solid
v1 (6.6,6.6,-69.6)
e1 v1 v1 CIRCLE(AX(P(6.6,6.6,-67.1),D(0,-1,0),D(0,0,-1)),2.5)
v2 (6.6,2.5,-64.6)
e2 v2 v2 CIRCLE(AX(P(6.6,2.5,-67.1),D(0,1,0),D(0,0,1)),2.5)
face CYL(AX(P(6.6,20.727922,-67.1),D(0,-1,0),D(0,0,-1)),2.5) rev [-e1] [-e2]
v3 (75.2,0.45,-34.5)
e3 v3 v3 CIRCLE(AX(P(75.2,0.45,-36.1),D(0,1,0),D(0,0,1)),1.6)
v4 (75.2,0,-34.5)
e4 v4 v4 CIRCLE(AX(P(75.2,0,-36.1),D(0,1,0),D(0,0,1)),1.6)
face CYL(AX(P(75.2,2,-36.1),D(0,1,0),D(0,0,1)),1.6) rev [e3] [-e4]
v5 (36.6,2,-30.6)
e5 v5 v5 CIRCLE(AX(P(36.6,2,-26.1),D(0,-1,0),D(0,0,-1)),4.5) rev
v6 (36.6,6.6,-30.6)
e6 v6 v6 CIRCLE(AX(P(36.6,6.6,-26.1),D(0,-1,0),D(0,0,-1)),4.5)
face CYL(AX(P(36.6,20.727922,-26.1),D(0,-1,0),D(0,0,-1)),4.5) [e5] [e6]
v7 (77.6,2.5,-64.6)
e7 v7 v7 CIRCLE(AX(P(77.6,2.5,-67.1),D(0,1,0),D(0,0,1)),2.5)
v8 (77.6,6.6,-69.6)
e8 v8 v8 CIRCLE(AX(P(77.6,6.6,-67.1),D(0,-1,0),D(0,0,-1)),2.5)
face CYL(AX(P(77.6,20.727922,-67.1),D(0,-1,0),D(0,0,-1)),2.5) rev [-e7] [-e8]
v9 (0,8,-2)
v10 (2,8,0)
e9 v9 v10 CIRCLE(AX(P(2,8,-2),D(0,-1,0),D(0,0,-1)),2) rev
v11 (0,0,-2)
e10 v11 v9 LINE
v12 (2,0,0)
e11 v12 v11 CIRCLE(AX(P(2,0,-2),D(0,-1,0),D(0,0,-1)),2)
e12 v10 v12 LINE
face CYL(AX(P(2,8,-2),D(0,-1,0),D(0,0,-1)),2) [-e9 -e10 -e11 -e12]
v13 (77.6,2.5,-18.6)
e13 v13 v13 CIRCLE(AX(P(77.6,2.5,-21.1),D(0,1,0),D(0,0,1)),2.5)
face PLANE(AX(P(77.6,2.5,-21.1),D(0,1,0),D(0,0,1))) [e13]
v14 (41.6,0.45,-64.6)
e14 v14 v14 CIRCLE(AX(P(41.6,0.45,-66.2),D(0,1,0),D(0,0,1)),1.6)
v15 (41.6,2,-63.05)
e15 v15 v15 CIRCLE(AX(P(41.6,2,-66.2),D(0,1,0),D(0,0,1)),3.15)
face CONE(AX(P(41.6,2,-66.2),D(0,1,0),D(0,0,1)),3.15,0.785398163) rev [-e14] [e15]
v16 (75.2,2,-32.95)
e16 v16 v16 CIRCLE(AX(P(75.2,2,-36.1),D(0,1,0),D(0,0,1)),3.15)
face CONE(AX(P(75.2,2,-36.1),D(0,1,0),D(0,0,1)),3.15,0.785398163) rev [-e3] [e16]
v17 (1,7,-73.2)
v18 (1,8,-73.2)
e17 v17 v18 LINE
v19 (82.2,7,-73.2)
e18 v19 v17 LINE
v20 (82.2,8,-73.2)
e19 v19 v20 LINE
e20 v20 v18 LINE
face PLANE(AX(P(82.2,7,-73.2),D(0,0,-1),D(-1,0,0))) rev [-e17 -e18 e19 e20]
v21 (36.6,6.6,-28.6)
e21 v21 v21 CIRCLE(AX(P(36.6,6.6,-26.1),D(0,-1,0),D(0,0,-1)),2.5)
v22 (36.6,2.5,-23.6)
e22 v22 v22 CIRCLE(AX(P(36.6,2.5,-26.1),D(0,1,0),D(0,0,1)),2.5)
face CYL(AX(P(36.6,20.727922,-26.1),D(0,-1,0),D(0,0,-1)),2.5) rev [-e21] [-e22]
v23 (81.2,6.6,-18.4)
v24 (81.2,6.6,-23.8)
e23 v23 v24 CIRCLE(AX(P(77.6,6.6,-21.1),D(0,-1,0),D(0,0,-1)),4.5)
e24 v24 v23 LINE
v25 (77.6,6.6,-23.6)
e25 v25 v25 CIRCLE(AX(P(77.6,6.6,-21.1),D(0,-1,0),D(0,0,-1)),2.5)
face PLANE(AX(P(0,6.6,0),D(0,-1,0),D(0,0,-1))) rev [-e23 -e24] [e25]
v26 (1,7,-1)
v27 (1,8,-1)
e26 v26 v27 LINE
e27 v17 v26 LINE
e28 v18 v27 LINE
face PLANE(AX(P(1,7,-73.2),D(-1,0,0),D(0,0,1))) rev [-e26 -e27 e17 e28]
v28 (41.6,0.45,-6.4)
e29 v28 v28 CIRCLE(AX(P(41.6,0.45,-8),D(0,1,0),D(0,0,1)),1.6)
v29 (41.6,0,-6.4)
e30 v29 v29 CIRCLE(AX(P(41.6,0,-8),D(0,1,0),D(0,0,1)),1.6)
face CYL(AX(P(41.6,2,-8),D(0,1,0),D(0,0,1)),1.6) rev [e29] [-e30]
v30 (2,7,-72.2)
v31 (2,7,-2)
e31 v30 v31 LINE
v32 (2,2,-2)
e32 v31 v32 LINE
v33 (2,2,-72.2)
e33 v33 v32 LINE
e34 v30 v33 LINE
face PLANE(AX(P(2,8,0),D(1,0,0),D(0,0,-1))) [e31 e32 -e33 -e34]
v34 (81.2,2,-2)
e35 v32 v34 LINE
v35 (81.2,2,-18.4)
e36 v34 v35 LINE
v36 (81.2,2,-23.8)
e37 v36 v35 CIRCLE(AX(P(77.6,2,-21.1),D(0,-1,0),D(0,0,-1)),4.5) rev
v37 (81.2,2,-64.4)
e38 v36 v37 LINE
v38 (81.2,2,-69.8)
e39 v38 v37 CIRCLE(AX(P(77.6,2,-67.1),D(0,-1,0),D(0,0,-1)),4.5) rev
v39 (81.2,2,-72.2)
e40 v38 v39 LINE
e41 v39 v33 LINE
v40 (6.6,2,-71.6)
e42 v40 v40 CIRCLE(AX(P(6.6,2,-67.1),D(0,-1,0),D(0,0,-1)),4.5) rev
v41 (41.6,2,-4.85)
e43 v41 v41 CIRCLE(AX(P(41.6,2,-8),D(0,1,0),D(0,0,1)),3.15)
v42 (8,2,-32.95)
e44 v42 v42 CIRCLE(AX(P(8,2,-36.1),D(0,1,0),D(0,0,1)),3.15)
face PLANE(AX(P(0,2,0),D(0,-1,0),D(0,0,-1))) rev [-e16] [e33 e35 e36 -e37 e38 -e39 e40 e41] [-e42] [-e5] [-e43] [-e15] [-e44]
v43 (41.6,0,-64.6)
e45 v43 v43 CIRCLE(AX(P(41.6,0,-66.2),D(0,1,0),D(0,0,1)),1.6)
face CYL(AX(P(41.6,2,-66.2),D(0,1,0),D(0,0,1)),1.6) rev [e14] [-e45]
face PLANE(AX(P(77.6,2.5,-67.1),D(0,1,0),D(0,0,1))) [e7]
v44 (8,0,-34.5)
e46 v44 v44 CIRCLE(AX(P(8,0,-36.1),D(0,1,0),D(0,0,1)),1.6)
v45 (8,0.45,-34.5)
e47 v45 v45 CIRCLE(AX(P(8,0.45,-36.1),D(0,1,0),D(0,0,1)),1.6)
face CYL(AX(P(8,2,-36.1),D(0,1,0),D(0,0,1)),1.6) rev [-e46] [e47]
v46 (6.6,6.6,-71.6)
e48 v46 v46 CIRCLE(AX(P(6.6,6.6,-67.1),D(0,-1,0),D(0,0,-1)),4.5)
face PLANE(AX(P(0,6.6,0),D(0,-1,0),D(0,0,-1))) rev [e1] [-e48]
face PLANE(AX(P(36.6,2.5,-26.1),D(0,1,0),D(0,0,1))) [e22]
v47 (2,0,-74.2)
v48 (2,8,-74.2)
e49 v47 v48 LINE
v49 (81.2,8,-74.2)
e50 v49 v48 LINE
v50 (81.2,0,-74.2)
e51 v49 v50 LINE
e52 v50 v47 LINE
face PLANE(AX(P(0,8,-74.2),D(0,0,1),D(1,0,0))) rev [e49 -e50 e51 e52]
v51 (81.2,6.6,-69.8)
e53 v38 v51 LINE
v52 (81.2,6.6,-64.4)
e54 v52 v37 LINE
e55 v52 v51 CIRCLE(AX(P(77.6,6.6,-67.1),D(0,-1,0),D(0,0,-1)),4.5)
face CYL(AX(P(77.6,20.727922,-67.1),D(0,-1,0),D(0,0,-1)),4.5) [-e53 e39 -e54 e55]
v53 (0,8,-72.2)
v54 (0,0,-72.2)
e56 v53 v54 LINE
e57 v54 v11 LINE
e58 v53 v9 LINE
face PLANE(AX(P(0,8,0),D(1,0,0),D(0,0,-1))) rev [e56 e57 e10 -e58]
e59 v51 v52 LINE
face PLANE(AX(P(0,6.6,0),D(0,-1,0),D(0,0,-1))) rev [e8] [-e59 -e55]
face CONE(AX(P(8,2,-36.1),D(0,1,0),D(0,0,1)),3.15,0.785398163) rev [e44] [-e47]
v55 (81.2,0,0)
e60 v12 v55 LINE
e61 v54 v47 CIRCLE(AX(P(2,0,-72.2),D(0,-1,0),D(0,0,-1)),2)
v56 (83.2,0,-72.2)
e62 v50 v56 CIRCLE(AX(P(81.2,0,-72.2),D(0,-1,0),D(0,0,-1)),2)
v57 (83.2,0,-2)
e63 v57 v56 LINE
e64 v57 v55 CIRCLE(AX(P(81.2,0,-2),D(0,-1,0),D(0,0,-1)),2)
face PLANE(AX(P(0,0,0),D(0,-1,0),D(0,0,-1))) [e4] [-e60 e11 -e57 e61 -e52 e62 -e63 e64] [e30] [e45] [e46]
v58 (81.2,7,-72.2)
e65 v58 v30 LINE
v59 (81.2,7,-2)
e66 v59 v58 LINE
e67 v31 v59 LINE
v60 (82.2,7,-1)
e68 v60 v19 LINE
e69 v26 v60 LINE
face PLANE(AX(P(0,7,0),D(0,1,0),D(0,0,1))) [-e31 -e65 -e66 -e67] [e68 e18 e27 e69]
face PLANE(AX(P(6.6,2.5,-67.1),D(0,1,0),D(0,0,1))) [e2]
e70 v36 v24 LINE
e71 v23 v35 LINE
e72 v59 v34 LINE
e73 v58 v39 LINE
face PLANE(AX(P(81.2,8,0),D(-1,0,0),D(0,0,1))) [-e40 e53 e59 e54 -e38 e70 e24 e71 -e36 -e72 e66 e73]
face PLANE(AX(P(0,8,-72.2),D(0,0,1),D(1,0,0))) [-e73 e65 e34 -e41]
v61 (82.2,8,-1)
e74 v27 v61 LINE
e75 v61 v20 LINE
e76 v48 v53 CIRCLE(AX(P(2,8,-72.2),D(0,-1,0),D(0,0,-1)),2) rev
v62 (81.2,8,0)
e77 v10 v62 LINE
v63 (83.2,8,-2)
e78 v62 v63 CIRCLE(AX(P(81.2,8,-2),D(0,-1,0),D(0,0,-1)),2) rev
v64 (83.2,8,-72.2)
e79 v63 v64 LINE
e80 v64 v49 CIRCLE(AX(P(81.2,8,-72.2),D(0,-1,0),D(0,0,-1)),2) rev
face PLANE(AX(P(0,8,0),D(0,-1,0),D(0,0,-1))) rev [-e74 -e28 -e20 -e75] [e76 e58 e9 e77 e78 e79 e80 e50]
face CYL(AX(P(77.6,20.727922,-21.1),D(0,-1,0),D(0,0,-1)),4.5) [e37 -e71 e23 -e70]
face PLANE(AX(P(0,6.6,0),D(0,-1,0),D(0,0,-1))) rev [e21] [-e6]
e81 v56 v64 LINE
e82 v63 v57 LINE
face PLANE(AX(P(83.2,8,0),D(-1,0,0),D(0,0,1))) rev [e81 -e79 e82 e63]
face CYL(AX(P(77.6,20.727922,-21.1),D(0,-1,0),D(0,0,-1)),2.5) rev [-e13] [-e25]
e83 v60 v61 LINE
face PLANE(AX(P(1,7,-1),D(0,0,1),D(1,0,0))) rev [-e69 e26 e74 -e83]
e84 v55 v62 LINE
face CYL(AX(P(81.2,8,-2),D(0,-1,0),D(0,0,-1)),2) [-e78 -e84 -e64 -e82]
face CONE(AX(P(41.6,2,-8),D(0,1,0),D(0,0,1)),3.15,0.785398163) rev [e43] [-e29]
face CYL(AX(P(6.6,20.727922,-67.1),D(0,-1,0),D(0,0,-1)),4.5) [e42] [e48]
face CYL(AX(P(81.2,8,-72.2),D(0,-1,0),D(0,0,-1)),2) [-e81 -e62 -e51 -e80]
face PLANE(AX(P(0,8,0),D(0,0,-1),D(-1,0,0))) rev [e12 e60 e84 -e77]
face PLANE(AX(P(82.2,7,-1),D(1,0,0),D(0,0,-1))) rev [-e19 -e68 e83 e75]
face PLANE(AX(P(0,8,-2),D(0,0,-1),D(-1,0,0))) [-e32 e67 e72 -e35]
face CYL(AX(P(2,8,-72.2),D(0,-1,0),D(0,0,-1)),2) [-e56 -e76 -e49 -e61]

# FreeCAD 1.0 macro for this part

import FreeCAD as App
import Part
import Sketcher

V = App.Vector
Q = App.Units.Quantity


def edges_at(feature, points):
    """Names of the edges that pass closest to the given points."""
    edges = feature.Shape.Edges
    near = lambda p: min(range(len(edges)), key=lambda i: edges[i].distToShape(Part.Vertex(*p))[0])
    return sorted({f"Edge{near(p) + 1}" for p in points})


def faces_at(feature, points):
    """Names of the faces that lie closest to the given points."""
    faces = feature.Shape.Faces
    near = lambda p: min(range(len(faces)), key=lambda i: faces[i].distToShape(Part.Vertex(*p))[0])
    return sorted({f"Face{near(p) + 1}" for p in points})


def add_polygon(sketch, points):
    """Adds a closed chain of lines whose ends are joined by coincident constraints."""
    first, n = sketch.GeometryCount, len(points)
    for a, b in zip(points, points[1:] + points[:1]):
        sketch.addGeometry(Part.LineSegment(App.Vector(*a, 0), App.Vector(*b, 0)), False)
    for i in range(n):
        sketch.addConstraint(Sketcher.Constraint("Coincident", first + i, 2, first + (i + 1) % n, 1))

doc = App.newDocument("Part")
body = doc.addObject("PartDesign::Body", "Body")

sketch1 = doc.addObject("Sketcher::SketchObject", "Sketch")
body.addObject(sketch1)
sketch1.AttachmentSupport = (doc.XZ_Plane, [""])
sketch1.MapMode = "FlatFace"
add_polygon(sketch1, [(0, -74), (0, 0), (83, 0), (83, -74)])
sketch1.addConstraint([
    Sketcher.Constraint("Vertical", 0),
    Sketcher.Constraint("Horizontal", 1),
    Sketcher.Constraint("Vertical", 2),
    Sketcher.Constraint("Horizontal", 3),
    Sketcher.Constraint("Coincident", 0, 2, -1, 1),
    Sketcher.Constraint("DistanceX", 1, 1, 1, 2, 83.2),
    Sketcher.Constraint("DistanceY", 0, 1, 0, 2, 74.2),
])
pad1 = doc.addObject("PartDesign::Pad", "Pad")
body.addObject(pad1)
pad1.Profile = sketch1
pad1.Length = 8
pad1.Reversed = True
doc.recompute()

thickness = doc.addObject("PartDesign::Thickness", "Thickness")
body.addObject(thickness)
thickness.Base = (pad1, faces_at(pad1, [(41.6, 8, -37.1)]))
thickness.Value = 2
thickness.Reversed = True
thickness.Join = "Intersection"

sketch2 = doc.addObject("Sketcher::SketchObject", "Sketch001")
body.addObject(sketch2)
sketch2.AttachmentSupport = (doc.XZ_Plane, [""])
sketch2.MapMode = "FlatFace"
sketch2.AttachmentOffset = App.Placement(V(0, 0, -2), App.Rotation())
sketch2.addGeometry([
    Part.Circle(V(6.6, -67.1, 0), V(0, 0, 1), 4.5),
    Part.Circle(V(6.6, -67.1, 0), V(0, 0, 1), 2.5),
    Part.Circle(V(36.6, -26.1, 0), V(0, 0, 1), 4.5),
    Part.Circle(V(36.6, -26.1, 0), V(0, 0, 1), 2.5),
    Part.Circle(V(77.6, -67.1, 0), V(0, 0, 1), 4.5),
    Part.Circle(V(77.6, -67.1, 0), V(0, 0, 1), 2.5),
    Part.Circle(V(77.6, -21.1, 0), V(0, 0, 1), 4.5),
    Part.Circle(V(77.6, -21.1, 0), V(0, 0, 1), 2.5),
], False)
sketch2.addConstraint([
    Sketcher.Constraint("Coincident", 1, 3, 0, 3),
    Sketcher.Constraint("Coincident", 3, 3, 2, 3),
    Sketcher.Constraint("Coincident", 5, 3, 4, 3),
    Sketcher.Constraint("Coincident", 7, 3, 6, 3),
    Sketcher.Constraint("Equal", 0, 2),
    Sketcher.Constraint("Equal", 1, 3),
    Sketcher.Constraint("Equal", 2, 4),
    Sketcher.Constraint("Equal", 3, 5),
    Sketcher.Constraint("Equal", 4, 6),
    Sketcher.Constraint("Equal", 5, 7),
    Sketcher.Constraint("Horizontal", 1, 3, 4, 3),
    Sketcher.Constraint("Vertical", 5, 3, 6, 3),
    Sketcher.Constraint("Diameter", 0, 9.0),
    Sketcher.Constraint("Diameter", 1, 5.0),
    Sketcher.Constraint("DistanceX", 0, 3, 2, 3, 30.0),
    Sketcher.Constraint("DistanceY", 0, 3, 2, 3, 41.0),
    Sketcher.Constraint("DistanceX", 2, 3, 4, 3, 41.0),
    Sketcher.Constraint("DistanceY", 2, 3, 6, 3, 5.0),
    Sketcher.Constraint("DistanceX", -1, 1, 0, 3, 6.6),
    Sketcher.Constraint("DistanceY", 0, 3, -1, 1, 67.1),
])
pad2 = doc.addObject("PartDesign::Pad", "Pad001")
body.addObject(pad2)
pad2.Profile = sketch2
pad2.Length = 4.6
pad2.Reversed = True

sketch3 = doc.addObject("Sketcher::SketchObject", "Sketch002")
body.addObject(sketch3)
sketch3.AttachmentSupport = (doc.XZ_Plane, [""])
sketch3.MapMode = "FlatFace"
sketch3.AttachmentOffset = App.Placement(V(0, 0, -8), App.Rotation())
add_polygon(sketch3, [(1, -73), (1, -1), (82, -1), (82, -73)])
sketch3.addConstraint([
    Sketcher.Constraint("Vertical", 0),
    Sketcher.Constraint("Horizontal", 1),
    Sketcher.Constraint("Vertical", 2),
    Sketcher.Constraint("Horizontal", 3),
    Sketcher.Constraint("DistanceX", 1, 1, 1, 2, 81.2),
    Sketcher.Constraint("DistanceY", 0, 1, 0, 2, 72.2),
    Sketcher.Constraint("DistanceX", -1, 1, 0, 2, 1.0),
    Sketcher.Constraint("DistanceY", 0, 2, -1, 1, 1.0),
])
pocket1 = doc.addObject("PartDesign::Pocket", "Pocket")
body.addObject(pocket1)
pocket1.Profile = sketch3
pocket1.Length = 1
pocket1.Reversed = True

sketch4 = doc.addObject("Sketcher::SketchObject", "Sketch003")
body.addObject(sketch4)
sketch4.AttachmentSupport = (doc.XZ_Plane, [""])
sketch4.MapMode = "FlatFace"
sketch4.AttachmentOffset = App.Placement(V(0, 0, -2), App.Rotation())
sketch4.addGeometry([
    Part.Circle(V(6.6, -67.1, 0), V(0, 0, 1), 2.5),
    Part.Circle(V(77.6, -67.1, 0), V(0, 0, 1), 2.5),
    Part.Circle(V(36.6, -26.1, 0), V(0, 0, 1), 2.5),
    Part.Circle(V(77.6, -21.1, 0), V(0, 0, 1), 2.5),
], False)
sketch4.addConstraint([
    Sketcher.Constraint("Equal", 0, 1),
    Sketcher.Constraint("Equal", 1, 2),
    Sketcher.Constraint("Equal", 2, 3),
    Sketcher.Constraint("Horizontal", 0, 3, 1, 3),
    Sketcher.Constraint("Vertical", 1, 3, 3, 3),
    Sketcher.Constraint("Diameter", 0, 5.0),
    Sketcher.Constraint("DistanceX", 0, 3, 1, 3, 71.0),
    Sketcher.Constraint("DistanceX", 0, 3, 2, 3, 30.0),
    Sketcher.Constraint("DistanceY", 0, 3, 2, 3, 41.0),
    Sketcher.Constraint("DistanceY", 2, 3, 3, 3, 5.0),
    Sketcher.Constraint("DistanceX", -1, 1, 0, 3, 6.6),
    Sketcher.Constraint("DistanceY", 0, 3, -1, 1, 67.1),
])
pad3 = doc.addObject("PartDesign::Pad", "Pad002")
body.addObject(pad3)
pad3.Profile = sketch4
pad3.Length = 0.5
pad3.Reversed = True

sketch5 = doc.addObject("Sketcher::SketchObject", "Sketch004")
body.addObject(sketch5)
sketch5.AttachmentSupport = (doc.YZ_Plane, [""])
sketch5.MapMode = "FlatFace"
sketch5.AttachmentOffset = App.Placement(V(0, 0, 41.6), App.Rotation())
add_polygon(sketch5, [(0, -66.2), (2, -66.2), (2, -63.05), (0.45, -64.6), (0, -64.6)])
sketch5.addGeometry(Part.LineSegment(V(2, -66.2, 0), V(0, -66.2, 0)), True)
sketch5.addConstraint([
    Sketcher.Constraint("Horizontal", 0),
    Sketcher.Constraint("Vertical", 1),
    Sketcher.Constraint("Horizontal", 3),
    Sketcher.Constraint("Vertical", 4),
    Sketcher.Constraint("Horizontal", 5),
    Sketcher.Constraint("Coincident", 5, 1, 0, 2),
    Sketcher.Constraint("PointOnObject", 3, 2, -2),
    Sketcher.Constraint("PointOnObject", 5, 2, -2),
    Sketcher.Constraint("DistanceX", 0, 1, 0, 2, 2.0),
    Sketcher.Constraint("Angle", 2, Q("-135 deg")),
    Sketcher.Constraint("DistanceY", 4, 2, 4, 1, 1.6),
    Sketcher.Constraint("DistanceX", 3, 2, 3, 1, 0.45),
    Sketcher.Constraint("DistanceY", 0, 2, -1, 1, 66.2),
])
groove = doc.addObject("PartDesign::Groove", "Groove")
body.addObject(groove)
groove.Profile = sketch5
groove.ReferenceAxis = (sketch5, ["Axis0"])
groove.Angle = 360
doc.recompute()

datumline = doc.addObject("PartDesign::Line", "DatumLine")
body.addObject(datumline)
datumline.Placement = App.Placement(V(0, 0, 0), App.Rotation(V(0, 0, 1), V(-0.744835336, 0, 0.667248322)))
linearpattern = doc.addObject("PartDesign::LinearPattern", "LinearPattern")
body.addObject(linearpattern)
linearpattern.Originals = [groove]
linearpattern.Direction = (datumline, [""])
linearpattern.Mode = "offset"
linearpattern.Offset = 45.110642
linearpattern.Occurrences = 2
body.Tip = linearpattern
doc.recompute()

datumline2 = doc.addObject("PartDesign::Line", "DatumLine001")
body.addObject(datumline2)
datumline2.Placement = App.Placement(V(0, 0, 0), App.Rotation(V(0, 0, 1), V(0.744835336, 0, 0.667248322)))
linearpattern2 = doc.addObject("PartDesign::LinearPattern", "LinearPattern001")
body.addObject(linearpattern2)
linearpattern2.Originals = [groove]
linearpattern2.Direction = (datumline2, [""])
linearpattern2.Mode = "offset"
linearpattern2.Offset = 45.110642
linearpattern2.Occurrences = 2
body.Tip = linearpattern2
doc.recompute()

linearpattern3 = doc.addObject("PartDesign::LinearPattern", "LinearPattern002")
body.addObject(linearpattern3)
linearpattern3.Originals = [groove]
linearpattern3.Direction = (doc.Z_Axis, [""])
linearpattern3.Mode = "offset"
linearpattern3.Offset = 58.2
linearpattern3.Occurrences = 2
body.Tip = linearpattern3
doc.recompute()

fillet = doc.addObject("PartDesign::Fillet", "Fillet")
body.addObject(fillet)
fillet.Base = (linearpattern3, edges_at(linearpattern3, [
    (0, 4, -74.2),
    (83.2, 4, -74.2),
    (83.2, 4, 0),
    (0, 4, 0),
]))
fillet.Radius = 2

doc.recompute()
